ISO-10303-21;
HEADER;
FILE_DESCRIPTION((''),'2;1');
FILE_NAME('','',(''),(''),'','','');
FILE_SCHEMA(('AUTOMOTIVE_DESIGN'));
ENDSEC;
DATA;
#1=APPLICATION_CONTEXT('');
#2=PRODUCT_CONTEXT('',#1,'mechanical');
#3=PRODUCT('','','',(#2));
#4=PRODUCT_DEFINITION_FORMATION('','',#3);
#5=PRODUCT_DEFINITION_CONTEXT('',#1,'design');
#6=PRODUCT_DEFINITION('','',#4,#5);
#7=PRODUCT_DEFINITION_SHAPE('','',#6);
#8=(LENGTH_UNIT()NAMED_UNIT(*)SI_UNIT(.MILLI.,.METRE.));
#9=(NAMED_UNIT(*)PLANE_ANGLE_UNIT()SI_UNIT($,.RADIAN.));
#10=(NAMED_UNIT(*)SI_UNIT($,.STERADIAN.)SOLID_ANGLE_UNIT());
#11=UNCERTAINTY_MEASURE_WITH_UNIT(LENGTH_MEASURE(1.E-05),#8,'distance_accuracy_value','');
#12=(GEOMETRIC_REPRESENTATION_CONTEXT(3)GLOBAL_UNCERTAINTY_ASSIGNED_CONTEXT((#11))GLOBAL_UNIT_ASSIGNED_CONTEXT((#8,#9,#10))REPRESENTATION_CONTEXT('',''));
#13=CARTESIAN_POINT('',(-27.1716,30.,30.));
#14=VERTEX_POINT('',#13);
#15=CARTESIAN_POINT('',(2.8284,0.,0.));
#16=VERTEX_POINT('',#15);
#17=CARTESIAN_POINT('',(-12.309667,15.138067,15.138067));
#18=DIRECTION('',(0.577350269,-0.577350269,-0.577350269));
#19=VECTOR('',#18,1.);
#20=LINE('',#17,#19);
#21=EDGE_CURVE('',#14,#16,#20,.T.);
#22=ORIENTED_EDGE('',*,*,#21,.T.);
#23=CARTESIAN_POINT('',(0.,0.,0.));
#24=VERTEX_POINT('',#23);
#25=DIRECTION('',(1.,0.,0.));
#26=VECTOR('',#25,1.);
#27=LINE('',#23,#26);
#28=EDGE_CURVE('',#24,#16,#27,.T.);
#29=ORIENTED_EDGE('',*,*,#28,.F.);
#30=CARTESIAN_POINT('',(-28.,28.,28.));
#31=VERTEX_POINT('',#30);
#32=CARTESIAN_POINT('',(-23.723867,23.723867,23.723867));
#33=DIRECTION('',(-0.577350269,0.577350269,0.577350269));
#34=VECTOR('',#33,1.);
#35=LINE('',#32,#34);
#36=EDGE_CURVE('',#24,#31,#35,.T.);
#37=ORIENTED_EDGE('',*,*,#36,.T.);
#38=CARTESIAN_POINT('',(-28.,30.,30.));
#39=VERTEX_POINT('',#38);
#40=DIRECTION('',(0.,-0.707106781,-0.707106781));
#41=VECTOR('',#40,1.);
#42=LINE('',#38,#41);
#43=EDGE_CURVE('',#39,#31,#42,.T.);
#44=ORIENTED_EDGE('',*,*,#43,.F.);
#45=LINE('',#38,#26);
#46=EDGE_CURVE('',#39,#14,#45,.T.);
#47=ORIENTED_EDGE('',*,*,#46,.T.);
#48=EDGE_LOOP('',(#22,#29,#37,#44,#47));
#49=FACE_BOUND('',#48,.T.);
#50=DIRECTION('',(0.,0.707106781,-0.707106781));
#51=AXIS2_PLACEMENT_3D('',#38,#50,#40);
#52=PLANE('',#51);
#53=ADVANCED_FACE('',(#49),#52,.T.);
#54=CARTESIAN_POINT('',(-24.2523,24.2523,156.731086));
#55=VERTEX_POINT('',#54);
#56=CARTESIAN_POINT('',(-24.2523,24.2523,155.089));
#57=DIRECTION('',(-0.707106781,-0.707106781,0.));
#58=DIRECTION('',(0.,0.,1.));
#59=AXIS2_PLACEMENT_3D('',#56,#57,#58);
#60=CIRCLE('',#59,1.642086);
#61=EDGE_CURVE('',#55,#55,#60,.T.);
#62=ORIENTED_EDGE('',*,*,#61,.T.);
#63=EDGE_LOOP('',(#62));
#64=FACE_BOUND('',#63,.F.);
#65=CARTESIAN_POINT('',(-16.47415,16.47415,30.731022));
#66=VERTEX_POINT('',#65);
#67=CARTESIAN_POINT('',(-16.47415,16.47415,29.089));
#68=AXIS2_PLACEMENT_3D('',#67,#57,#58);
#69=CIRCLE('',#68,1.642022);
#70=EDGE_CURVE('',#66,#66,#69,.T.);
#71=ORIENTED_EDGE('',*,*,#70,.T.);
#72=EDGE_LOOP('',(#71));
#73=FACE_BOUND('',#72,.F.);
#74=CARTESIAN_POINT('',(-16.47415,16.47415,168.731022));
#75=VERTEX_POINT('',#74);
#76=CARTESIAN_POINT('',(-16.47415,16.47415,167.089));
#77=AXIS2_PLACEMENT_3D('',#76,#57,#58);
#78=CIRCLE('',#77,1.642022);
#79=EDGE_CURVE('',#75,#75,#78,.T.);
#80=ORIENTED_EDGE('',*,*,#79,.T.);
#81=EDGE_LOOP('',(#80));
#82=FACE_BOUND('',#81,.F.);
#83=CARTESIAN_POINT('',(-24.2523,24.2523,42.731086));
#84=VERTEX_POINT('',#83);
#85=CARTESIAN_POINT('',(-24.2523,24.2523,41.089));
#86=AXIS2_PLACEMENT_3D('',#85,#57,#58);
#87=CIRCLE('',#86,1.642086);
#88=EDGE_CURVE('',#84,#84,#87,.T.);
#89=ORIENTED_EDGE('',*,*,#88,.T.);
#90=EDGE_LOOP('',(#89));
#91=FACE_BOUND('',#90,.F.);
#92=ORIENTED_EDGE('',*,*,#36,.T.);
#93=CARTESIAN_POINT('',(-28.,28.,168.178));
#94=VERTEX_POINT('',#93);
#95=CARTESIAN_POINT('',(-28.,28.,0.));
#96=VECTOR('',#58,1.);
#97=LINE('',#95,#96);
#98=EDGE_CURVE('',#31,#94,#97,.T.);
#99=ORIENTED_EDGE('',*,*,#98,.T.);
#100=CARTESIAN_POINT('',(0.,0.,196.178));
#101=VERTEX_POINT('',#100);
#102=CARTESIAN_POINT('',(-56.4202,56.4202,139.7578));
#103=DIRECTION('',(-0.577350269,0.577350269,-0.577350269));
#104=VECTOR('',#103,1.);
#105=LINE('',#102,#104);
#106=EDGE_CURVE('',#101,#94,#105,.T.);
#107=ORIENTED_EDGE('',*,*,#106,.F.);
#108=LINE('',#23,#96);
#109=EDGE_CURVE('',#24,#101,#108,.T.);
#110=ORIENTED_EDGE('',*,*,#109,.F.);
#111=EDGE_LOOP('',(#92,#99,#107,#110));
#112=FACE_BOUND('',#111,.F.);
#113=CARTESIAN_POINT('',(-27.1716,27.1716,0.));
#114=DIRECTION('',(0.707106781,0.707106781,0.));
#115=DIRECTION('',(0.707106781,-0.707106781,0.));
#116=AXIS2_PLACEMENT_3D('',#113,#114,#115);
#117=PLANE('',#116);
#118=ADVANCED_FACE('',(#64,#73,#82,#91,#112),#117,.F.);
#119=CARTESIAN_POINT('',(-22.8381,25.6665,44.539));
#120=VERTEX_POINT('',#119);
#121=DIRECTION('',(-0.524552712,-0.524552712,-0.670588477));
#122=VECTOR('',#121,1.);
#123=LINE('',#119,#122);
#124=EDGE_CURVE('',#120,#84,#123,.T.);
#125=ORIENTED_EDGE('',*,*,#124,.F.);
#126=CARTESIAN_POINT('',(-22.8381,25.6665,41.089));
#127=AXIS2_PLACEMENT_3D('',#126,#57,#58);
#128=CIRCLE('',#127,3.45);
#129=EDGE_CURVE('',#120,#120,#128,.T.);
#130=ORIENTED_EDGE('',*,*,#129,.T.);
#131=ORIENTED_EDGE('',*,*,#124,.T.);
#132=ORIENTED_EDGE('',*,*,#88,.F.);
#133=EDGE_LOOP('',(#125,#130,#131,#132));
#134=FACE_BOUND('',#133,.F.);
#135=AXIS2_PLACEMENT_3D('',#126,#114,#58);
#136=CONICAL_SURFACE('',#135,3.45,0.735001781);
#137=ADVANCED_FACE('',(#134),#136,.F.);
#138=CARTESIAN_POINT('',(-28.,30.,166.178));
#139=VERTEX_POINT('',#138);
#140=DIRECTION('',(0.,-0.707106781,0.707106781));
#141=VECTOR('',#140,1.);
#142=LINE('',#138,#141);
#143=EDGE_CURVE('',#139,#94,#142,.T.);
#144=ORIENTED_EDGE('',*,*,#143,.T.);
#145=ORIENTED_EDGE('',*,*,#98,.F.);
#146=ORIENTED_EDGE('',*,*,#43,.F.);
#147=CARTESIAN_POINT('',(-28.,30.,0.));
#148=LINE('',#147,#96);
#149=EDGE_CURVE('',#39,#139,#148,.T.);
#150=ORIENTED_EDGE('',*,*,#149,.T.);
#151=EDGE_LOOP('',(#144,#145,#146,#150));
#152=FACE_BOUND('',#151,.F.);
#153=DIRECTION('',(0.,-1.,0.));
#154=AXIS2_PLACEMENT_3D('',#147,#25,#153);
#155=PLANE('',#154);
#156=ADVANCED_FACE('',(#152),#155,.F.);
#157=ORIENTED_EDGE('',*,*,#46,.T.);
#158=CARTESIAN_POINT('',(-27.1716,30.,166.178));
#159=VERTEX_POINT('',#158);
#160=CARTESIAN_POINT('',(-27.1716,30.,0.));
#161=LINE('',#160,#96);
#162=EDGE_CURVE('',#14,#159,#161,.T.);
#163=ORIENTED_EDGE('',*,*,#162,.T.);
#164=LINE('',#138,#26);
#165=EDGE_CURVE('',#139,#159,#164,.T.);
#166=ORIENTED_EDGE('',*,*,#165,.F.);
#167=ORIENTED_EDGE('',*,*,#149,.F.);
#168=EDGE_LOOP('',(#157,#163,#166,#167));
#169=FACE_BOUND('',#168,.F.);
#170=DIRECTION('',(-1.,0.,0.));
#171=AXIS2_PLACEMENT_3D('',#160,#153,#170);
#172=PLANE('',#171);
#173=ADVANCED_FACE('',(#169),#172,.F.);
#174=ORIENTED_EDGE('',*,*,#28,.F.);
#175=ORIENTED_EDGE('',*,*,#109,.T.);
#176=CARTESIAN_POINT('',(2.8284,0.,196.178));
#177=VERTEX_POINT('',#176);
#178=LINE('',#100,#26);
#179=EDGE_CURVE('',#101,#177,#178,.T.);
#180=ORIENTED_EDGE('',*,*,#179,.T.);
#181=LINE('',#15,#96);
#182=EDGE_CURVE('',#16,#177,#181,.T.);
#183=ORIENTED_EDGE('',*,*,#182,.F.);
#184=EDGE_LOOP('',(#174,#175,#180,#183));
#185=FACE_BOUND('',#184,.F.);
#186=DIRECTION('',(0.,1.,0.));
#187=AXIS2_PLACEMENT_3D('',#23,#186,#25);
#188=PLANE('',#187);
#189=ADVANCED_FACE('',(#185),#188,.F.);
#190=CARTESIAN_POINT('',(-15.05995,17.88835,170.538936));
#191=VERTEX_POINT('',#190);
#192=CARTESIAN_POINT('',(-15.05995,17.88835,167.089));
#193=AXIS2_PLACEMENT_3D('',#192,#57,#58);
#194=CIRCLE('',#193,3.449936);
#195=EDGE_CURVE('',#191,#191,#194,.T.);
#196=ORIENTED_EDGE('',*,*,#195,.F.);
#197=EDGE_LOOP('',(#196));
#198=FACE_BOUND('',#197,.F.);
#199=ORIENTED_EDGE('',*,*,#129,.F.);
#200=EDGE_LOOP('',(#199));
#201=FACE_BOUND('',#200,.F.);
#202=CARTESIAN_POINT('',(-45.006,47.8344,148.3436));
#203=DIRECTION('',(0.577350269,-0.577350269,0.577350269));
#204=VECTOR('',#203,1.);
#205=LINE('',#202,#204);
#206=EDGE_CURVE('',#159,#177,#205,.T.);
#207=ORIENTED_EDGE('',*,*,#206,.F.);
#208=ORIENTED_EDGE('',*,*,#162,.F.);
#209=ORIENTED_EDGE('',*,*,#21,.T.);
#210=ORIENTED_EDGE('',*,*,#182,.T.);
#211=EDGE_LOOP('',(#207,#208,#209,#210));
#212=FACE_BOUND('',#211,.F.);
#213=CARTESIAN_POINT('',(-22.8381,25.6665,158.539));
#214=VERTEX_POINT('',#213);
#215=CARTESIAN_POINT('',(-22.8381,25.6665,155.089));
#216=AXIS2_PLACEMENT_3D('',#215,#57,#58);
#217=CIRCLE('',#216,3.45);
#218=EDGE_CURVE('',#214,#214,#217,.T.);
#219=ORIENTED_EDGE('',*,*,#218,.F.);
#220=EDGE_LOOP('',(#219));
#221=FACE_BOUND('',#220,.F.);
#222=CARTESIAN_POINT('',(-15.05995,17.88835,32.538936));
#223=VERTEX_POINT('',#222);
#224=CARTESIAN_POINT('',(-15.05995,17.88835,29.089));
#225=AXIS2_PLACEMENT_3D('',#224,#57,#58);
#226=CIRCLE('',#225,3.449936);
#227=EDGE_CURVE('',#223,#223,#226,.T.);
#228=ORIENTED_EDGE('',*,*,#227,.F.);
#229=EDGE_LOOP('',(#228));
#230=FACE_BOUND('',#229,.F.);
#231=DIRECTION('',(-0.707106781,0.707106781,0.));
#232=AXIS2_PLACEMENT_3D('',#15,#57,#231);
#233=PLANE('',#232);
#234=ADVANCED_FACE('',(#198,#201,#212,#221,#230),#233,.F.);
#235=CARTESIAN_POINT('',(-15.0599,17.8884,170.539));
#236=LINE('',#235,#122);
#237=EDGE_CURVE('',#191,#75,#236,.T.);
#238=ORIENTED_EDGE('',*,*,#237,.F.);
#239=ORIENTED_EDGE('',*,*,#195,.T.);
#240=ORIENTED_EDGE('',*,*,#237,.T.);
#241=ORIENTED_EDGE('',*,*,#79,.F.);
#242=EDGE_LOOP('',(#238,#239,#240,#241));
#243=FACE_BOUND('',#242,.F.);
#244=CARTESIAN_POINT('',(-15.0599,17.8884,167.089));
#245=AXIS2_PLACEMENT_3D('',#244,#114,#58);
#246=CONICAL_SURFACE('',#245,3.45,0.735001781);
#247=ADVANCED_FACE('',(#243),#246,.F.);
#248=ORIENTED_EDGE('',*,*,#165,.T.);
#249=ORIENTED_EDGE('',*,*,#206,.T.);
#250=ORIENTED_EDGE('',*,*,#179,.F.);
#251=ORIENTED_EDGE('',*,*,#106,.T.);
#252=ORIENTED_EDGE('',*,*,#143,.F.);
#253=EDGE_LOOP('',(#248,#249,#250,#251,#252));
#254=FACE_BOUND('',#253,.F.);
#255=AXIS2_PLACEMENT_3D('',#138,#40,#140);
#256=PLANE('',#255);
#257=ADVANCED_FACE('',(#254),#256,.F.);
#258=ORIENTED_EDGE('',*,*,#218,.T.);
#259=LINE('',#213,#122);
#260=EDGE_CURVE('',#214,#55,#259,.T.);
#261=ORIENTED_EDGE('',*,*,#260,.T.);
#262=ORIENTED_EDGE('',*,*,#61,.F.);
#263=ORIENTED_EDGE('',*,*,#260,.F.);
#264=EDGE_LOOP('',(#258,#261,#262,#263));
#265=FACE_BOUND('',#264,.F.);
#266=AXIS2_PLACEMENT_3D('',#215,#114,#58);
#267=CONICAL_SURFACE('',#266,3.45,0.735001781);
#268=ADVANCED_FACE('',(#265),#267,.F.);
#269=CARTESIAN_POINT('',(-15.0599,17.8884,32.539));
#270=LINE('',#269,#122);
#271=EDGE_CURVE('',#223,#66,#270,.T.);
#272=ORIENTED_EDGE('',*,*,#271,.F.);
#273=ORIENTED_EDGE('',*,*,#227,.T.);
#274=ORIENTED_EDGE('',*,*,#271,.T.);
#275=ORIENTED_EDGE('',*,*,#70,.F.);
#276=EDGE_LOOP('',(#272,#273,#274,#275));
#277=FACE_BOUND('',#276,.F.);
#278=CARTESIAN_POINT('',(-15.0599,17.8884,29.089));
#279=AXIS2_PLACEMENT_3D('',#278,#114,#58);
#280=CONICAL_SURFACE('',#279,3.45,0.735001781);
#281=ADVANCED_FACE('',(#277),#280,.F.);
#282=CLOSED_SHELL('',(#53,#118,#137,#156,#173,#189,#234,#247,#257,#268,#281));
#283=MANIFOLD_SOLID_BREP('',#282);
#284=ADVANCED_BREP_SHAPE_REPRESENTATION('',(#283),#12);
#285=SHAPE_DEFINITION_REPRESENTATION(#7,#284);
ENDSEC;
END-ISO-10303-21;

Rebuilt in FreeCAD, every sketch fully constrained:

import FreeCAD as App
import Part
import Sketcher
Q = App.Units.Quantity

doc = App.newDocument("Part")
body = doc.addObject("PartDesign::Body", "Body")

# Sketch on XY plane
sketch1 = body.newObject("Sketcher::SketchObject", "Sketch")
sketch1.AttachmentSupport = (doc.getObject("XY_Plane"), [""])
sketch1.MapMode = "FlatFace"
sketch1.addGeometry([
    Part.LineSegment(App.Vector(0, 0, 0), App.Vector(2.8, 0, 0)),  # 0
    Part.LineSegment(App.Vector(2.8, 0, 0), App.Vector(-27.2, 30, 0)),  # 1
    Part.LineSegment(App.Vector(-27.2, 30, 0), App.Vector(-28, 30, 0)),  # 2
    Part.LineSegment(App.Vector(-28, 30, 0), App.Vector(-28, 28, 0)),  # 3
    Part.LineSegment(App.Vector(-28, 28, 0), App.Vector(0, 0, 0)),  # 4
], False)
sketch1.addConstraint([
    Sketcher.Constraint("Coincident", 0, 2, 1, 1),
    Sketcher.Constraint("Coincident", 1, 2, 2, 1),
    Sketcher.Constraint("Coincident", 2, 2, 3, 1),
    Sketcher.Constraint("Coincident", 3, 2, 4, 1),
    Sketcher.Constraint("Coincident", 4, 2, 0, 1),
    Sketcher.Constraint("Horizontal", 0),
    Sketcher.Constraint("Horizontal", 2),
    Sketcher.Constraint("Vertical", 3),
    Sketcher.Constraint("Coincident", 4, 2, -1, 1),
    Sketcher.Constraint("Parallel", 1, 4),
    Sketcher.Constraint("DistanceY", 3, 2, 3, 1, Q("2 mm")),
    Sketcher.Constraint("Angle", 4, Q("-45 deg")),
    Sketcher.Constraint("DistanceY", -1, 1, 1, 2, Q("30 mm")),
    Sketcher.Constraint("DistanceX", 0, 1, 0, 2, Q("2.8284 mm")),
])
pad1 = body.newObject("PartDesign::Pad", "Pad")
pad1.Profile = sketch1
pad1.Length = 196.178

# Sketch on YZ plane
sketch2 = body.newObject("Sketcher::SketchObject", "Sketch001")
sketch2.AttachmentSupport = (doc.getObject("YZ_Plane"), [""])
sketch2.MapMode = "FlatFace"
sketch2.AttachmentOffset = App.Placement(App.Vector(0, 0, -28), App.Rotation())
sketch2.addGeometry([
    Part.LineSegment(App.Vector(30, 0, 0), App.Vector(0, 0, 0)),  # 0
    Part.LineSegment(App.Vector(0, 0, 0), App.Vector(30, 30, 0)),  # 1
    Part.LineSegment(App.Vector(30, 30, 0), App.Vector(30, 0, 0)),  # 2
    Part.LineSegment(App.Vector(30, 196, 0), App.Vector(30, 166, 0)),  # 3
    Part.LineSegment(App.Vector(30, 166, 0), App.Vector(0, 196, 0)),  # 4
    Part.LineSegment(App.Vector(0, 196, 0), App.Vector(30, 196, 0)),  # 5
], False)
sketch2.addConstraint([
    Sketcher.Constraint("Coincident", 0, 2, 1, 1),
    Sketcher.Constraint("Coincident", 1, 2, 2, 1),
    Sketcher.Constraint("Coincident", 2, 2, 0, 1),
    Sketcher.Constraint("Coincident", 3, 2, 4, 1),
    Sketcher.Constraint("Coincident", 4, 2, 5, 1),
    Sketcher.Constraint("Coincident", 5, 2, 3, 1),
    Sketcher.Constraint("Horizontal", 0),
    Sketcher.Constraint("Vertical", 2),
    Sketcher.Constraint("Vertical", 3),
    Sketcher.Constraint("Horizontal", 5),
    Sketcher.Constraint("Coincident", 0, 2, -1, 1),
    Sketcher.Constraint("PointOnObject", 4, 2, -2),
    Sketcher.Constraint("Perpendicular", 1, 4),
    Sketcher.Constraint("Vertical", 2, 2, 3, 2),
    Sketcher.Constraint("Equal", 5, 2),
    Sketcher.Constraint("DistanceX", 0, 2, 0, 1, Q("30 mm")),
    Sketcher.Constraint("DistanceY", -1, 1, 3, 2, Q("166.178 mm")),
])
pocket1 = body.newObject("PartDesign::Pocket", "Pocket")
pocket1.Profile = sketch2
pocket1.Type = "ThroughAll"
pocket1.Reversed = True

# Sketch on an angled plane
sketch3 = body.newObject("Sketcher::SketchObject", "Sketch002")
sketch3.Placement = App.Placement(App.Vector(1.4142, 1.4142, 0), App.Rotation(App.Vector(-0.707106781, 0.707106781, 0), App.Vector(0, 0, 0.999999999), App.Vector(0.707106781, 0.707106781, 0), "ZXY"))
sketch3.addGeometry([
    Part.Circle(App.Vector(34.3, 155.1, 0), App.Vector(0, 0, 1), 1.6),
    Part.Circle(App.Vector(34.3, 41.1, 0), App.Vector(0, 0, 1), 1.6),
    Part.Circle(App.Vector(23.3, 167.1, 0), App.Vector(0, 0, 1), 1.6),
    Part.Circle(App.Vector(23.3, 29.1, 0), App.Vector(0, 0, 1), 1.6),
], False)
sketch3.addConstraint([
    Sketcher.Constraint("Equal", 0, 1),
    Sketcher.Constraint("Equal", 1, 2),
    Sketcher.Constraint("Equal", 2, 3),
    Sketcher.Constraint("Vertical", 0, 3, 1, 3),
    Sketcher.Constraint("Vertical", 2, 3, 3, 3),
    Sketcher.Constraint("Diameter", 0, Q("3.2 mm")),
    Sketcher.Constraint("DistanceY", 1, 3, 0, 3, Q("114 mm")),
    Sketcher.Constraint("DistanceX", 2, 3, 0, 3, Q("11 mm")),
    Sketcher.Constraint("DistanceY", 0, 3, 2, 3, Q("12 mm")),
    Sketcher.Constraint("DistanceY", 3, 3, 1, 3, Q("12 mm")),
    Sketcher.Constraint("DistanceX", -1, 1, 0, 3, Q("34.298 mm")),
    Sketcher.Constraint("DistanceY", -1, 1, 0, 3, Q("155.089 mm")),
])
doc.recompute()
hole = body.newObject("PartDesign::Hole", "Hole")
hole.Profile = sketch3
hole.ThreadType = "None"
hole.Diameter = 3.2
hole.DepthType = "ThroughAll"
hole.HoleCutType = "Countersink"
hole.HoleCutDiameter = 6.9
hole.HoleCutCountersinkAngle = 84.225

doc.recompute()
